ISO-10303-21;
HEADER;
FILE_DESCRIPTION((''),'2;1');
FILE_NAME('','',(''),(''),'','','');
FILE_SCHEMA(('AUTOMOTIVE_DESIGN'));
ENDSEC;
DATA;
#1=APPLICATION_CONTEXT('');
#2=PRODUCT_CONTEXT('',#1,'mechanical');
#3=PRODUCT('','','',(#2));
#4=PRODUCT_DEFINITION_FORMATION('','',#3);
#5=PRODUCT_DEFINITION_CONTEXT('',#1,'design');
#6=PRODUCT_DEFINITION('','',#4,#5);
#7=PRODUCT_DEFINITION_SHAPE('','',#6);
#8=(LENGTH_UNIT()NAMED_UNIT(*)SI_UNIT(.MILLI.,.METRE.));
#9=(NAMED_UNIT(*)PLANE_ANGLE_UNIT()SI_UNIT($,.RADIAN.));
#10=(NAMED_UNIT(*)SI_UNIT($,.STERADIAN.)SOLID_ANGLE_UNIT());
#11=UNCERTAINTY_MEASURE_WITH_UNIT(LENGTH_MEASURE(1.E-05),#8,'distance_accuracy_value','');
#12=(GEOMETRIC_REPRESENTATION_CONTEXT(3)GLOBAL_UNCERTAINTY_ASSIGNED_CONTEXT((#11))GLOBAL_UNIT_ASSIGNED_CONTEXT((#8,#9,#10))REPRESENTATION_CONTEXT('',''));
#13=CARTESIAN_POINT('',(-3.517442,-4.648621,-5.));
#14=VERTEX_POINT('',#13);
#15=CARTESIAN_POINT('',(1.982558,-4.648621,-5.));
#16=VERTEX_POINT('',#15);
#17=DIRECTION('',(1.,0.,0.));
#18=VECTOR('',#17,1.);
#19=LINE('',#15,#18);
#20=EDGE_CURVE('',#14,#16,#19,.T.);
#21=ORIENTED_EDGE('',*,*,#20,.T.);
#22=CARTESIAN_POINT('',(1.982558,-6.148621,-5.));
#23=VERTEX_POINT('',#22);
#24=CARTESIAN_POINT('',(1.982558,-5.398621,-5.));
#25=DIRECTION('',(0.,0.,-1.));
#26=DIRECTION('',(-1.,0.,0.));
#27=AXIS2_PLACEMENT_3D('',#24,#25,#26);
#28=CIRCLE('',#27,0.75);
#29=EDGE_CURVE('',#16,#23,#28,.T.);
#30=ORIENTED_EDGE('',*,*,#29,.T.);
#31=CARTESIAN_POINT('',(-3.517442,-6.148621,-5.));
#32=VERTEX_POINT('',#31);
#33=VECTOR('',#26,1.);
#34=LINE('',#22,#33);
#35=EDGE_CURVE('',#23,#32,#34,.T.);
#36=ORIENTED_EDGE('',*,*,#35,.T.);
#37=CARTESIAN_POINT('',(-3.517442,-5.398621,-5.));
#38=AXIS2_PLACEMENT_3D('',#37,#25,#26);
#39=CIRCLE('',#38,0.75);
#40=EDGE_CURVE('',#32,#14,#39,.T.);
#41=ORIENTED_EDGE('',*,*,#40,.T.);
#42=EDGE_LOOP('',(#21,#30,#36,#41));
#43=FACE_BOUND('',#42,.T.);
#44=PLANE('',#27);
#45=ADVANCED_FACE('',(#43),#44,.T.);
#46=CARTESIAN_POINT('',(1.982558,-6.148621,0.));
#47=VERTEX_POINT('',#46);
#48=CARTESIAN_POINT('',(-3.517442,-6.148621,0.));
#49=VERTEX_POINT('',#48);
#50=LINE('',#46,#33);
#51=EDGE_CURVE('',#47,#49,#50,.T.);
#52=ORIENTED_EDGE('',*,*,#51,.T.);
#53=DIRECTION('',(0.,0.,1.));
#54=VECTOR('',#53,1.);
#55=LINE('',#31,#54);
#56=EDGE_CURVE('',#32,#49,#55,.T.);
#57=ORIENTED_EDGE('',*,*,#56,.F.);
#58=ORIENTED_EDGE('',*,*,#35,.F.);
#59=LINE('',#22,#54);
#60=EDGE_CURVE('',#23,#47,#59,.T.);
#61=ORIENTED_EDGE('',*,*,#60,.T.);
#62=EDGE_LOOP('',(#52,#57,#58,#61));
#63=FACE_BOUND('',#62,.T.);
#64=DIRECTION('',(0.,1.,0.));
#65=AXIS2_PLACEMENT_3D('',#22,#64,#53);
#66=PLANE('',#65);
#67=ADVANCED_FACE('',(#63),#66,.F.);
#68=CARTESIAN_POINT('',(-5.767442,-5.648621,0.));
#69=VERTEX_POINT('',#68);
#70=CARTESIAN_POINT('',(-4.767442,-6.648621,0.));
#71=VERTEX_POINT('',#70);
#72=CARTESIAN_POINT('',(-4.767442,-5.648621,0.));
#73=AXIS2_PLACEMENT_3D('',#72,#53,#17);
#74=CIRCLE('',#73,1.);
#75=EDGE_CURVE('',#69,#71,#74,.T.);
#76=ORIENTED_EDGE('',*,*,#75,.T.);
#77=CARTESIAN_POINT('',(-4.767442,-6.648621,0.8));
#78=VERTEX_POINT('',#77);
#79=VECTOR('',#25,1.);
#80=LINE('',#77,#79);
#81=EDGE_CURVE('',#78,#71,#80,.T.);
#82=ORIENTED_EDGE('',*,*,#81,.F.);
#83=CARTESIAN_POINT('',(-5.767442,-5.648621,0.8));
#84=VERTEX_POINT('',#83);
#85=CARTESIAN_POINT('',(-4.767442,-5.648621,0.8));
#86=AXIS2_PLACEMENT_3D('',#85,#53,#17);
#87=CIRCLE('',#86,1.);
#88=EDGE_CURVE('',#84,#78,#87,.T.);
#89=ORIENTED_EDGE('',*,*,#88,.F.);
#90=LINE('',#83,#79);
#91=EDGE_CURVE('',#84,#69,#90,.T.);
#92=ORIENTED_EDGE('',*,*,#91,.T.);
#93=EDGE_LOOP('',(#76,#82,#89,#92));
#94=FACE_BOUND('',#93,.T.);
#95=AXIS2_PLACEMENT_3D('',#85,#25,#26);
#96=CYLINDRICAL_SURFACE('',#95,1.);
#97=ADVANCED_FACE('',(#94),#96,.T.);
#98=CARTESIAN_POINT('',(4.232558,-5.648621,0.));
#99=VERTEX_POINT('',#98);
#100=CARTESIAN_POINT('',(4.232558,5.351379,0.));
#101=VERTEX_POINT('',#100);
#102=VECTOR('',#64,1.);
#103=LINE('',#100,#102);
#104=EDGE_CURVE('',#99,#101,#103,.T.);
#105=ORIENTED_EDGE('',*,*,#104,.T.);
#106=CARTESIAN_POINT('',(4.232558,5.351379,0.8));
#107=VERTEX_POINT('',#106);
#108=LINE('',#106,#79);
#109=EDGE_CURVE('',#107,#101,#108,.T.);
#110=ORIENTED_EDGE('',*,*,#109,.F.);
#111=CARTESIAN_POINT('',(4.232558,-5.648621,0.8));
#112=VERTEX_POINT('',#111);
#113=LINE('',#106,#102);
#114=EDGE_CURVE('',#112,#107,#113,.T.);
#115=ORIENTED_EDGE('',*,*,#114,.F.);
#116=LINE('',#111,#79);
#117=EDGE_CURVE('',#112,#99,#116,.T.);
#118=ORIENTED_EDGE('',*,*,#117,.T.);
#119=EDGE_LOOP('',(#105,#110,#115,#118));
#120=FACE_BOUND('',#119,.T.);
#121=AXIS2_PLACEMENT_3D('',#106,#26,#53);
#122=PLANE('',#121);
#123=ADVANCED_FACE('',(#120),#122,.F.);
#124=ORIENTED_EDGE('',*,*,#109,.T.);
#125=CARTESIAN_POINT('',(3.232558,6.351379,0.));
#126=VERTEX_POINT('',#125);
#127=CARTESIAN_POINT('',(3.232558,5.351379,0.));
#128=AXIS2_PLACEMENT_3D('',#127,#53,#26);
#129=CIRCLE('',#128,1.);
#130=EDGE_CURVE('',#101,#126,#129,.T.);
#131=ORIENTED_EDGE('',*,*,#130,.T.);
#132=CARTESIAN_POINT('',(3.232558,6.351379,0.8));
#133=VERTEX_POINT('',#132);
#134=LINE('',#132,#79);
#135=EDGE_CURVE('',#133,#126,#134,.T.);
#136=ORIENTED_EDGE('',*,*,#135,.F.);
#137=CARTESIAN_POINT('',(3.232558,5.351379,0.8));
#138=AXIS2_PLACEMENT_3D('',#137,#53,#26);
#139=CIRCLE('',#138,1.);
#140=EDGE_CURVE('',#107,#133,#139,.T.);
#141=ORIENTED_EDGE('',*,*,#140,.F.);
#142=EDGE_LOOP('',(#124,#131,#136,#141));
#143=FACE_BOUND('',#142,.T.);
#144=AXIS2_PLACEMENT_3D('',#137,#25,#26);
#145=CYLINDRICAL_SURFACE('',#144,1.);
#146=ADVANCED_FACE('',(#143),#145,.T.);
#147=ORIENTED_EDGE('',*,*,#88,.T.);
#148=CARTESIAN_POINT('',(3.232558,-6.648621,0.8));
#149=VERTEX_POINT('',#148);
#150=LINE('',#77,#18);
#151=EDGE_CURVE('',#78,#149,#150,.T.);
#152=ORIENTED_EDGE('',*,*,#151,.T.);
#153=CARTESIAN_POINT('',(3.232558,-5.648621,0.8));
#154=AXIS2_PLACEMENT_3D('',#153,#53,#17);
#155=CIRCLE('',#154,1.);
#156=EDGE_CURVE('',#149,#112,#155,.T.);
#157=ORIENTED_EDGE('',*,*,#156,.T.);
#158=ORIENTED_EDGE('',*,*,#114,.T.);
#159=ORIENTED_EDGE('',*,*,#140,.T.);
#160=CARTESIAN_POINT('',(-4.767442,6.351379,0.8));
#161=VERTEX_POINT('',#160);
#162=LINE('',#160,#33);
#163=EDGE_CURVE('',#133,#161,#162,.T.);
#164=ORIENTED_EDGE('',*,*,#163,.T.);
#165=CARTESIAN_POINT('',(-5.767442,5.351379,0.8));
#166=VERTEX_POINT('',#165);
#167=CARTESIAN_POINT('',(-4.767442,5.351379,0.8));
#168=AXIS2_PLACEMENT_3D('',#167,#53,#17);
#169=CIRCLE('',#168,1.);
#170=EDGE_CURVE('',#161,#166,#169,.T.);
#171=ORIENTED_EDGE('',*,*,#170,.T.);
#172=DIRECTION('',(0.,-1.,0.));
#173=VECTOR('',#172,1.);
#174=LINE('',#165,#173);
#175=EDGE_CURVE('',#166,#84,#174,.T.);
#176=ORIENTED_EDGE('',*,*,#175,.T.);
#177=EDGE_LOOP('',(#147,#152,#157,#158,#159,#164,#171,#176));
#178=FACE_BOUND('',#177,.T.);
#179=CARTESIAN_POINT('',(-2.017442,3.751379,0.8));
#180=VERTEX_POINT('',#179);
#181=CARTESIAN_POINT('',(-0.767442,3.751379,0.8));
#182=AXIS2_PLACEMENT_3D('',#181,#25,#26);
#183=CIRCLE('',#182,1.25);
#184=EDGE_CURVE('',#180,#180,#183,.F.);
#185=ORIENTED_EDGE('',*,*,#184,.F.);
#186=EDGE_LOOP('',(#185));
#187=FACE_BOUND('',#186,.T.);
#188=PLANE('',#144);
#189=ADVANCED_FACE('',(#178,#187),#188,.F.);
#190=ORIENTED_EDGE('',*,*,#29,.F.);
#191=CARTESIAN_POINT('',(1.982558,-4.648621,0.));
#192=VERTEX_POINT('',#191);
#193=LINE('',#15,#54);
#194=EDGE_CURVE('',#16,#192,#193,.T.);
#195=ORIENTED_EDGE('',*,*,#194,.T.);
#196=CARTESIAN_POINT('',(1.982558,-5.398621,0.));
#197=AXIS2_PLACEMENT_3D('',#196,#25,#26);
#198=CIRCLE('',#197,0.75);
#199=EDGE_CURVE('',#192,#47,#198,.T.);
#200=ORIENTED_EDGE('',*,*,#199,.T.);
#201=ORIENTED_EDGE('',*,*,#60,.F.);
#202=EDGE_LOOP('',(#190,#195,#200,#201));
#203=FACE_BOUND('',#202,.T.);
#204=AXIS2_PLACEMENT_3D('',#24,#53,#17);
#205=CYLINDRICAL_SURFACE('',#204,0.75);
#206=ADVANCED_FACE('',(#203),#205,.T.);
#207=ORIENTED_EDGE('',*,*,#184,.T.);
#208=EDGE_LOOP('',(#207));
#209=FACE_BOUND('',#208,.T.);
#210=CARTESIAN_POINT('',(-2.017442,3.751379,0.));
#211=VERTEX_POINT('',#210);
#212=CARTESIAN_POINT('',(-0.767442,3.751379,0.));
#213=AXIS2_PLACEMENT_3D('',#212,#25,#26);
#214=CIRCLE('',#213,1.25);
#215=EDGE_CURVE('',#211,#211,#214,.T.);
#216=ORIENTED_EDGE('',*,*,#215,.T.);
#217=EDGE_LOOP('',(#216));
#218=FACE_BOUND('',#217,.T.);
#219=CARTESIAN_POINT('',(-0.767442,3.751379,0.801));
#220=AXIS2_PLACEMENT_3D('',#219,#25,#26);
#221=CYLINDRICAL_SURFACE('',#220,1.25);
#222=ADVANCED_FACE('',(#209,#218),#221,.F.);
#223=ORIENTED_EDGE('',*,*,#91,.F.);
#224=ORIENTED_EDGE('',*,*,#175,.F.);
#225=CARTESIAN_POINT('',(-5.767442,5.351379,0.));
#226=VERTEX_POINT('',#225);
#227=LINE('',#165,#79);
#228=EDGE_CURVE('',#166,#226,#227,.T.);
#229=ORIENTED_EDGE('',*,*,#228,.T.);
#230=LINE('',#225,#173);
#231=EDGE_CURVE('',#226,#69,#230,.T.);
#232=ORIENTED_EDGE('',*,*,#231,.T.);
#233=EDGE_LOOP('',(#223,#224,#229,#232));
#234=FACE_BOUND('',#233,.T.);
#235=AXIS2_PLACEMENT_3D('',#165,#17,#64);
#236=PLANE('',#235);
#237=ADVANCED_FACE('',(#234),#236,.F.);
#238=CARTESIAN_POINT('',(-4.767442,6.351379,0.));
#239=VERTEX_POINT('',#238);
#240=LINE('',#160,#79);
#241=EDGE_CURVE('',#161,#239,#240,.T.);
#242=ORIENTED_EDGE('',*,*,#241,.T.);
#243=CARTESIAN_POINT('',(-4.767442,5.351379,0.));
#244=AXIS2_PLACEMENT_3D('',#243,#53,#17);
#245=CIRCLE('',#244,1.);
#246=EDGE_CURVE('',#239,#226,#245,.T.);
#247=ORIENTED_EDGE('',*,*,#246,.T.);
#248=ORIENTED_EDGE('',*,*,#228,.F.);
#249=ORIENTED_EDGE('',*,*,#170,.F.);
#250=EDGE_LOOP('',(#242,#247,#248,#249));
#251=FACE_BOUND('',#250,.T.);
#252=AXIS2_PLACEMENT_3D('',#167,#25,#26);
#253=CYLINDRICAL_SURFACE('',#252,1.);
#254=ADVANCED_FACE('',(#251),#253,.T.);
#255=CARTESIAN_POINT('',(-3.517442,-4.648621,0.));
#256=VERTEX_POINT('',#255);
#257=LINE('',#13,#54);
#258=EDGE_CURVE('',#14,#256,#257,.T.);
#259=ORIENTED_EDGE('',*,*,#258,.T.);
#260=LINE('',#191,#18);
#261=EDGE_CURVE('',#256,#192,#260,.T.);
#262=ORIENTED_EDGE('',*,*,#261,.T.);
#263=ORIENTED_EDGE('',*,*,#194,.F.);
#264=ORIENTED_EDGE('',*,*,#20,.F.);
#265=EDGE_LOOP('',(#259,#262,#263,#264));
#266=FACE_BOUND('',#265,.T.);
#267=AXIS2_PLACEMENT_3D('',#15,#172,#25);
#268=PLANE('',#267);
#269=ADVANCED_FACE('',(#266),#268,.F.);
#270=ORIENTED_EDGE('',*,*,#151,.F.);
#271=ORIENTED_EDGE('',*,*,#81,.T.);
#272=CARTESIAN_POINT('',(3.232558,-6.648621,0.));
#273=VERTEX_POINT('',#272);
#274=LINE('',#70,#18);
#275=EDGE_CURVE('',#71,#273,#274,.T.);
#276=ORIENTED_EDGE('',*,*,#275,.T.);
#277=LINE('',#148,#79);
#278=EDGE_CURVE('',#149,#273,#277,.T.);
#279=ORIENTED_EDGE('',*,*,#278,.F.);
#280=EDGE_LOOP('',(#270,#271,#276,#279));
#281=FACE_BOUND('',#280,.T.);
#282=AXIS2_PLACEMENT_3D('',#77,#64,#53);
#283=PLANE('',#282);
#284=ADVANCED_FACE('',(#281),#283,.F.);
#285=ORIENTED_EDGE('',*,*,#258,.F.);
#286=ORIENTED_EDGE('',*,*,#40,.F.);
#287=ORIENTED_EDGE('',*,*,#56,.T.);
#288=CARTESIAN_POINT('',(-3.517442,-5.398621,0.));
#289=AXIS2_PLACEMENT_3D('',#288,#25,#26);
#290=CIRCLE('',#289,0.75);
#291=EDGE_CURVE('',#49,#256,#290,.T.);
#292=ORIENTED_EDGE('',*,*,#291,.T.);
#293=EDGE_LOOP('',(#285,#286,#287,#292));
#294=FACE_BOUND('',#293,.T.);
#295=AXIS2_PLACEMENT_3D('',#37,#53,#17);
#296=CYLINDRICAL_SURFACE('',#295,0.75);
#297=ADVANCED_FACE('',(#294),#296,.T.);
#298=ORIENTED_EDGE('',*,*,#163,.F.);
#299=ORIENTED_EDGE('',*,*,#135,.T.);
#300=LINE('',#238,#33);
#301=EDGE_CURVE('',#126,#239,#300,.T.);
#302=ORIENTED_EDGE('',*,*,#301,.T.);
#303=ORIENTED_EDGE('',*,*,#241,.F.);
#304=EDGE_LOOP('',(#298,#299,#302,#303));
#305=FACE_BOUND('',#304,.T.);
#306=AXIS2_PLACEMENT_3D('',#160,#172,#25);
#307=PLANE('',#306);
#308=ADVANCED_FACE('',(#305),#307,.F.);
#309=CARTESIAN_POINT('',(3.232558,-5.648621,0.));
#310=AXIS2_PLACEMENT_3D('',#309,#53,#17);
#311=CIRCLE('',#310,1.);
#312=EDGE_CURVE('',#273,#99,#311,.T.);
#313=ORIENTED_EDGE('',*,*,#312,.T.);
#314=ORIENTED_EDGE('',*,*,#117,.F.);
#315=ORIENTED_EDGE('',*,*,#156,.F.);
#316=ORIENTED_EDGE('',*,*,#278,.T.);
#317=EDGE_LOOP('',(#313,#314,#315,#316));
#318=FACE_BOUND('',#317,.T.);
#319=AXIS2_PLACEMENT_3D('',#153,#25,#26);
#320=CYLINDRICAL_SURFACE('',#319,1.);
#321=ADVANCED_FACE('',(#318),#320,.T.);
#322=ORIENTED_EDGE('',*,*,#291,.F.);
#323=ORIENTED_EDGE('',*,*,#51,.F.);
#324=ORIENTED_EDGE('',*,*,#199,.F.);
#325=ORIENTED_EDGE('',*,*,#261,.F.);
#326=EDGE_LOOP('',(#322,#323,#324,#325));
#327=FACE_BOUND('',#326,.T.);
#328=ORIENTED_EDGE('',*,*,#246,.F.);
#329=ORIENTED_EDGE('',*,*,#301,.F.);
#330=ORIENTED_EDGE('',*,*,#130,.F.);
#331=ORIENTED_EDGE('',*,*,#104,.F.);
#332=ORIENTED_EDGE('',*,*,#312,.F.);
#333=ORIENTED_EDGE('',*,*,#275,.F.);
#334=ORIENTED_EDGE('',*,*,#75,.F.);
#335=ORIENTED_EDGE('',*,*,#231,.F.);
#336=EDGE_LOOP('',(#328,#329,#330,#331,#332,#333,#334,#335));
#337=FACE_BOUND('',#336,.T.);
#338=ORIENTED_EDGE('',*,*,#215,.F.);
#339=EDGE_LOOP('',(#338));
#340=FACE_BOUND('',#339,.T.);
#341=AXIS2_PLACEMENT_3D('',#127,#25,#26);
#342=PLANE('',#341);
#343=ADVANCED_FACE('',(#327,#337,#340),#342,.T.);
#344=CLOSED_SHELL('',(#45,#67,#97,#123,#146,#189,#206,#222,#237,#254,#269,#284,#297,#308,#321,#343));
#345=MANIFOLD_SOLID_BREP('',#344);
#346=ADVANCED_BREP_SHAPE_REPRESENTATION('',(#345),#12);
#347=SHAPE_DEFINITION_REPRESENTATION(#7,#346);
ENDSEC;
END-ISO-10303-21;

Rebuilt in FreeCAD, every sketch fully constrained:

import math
import FreeCAD as App
import Part
import Sketcher
from FreeCAD import Vector

doc = App.newDocument("Part")
body = doc.addObject("PartDesign::Body", "Body")

sketch1 = body.newObject("Sketcher::SketchObject", "Sketch")
sketch1.AttachmentSupport = (doc.getObject("XY_Plane"), [""])
sketch1.MapMode = "FlatFace"
sketch1.addGeometry([
    Part.LineSegment(Vector(3.232558, 6.351379, 0), Vector(-4.767442, 6.351379, 0)),
    Part.ArcOfCircle(Part.Circle(Vector(-4.767442, 5.351379, 0), Vector(0, 0, 1), 1), math.radians(90), math.radians(180)),
    Part.LineSegment(Vector(-5.767442, 5.351379, 0), Vector(-5.767442, -5.648621, 0)),
    Part.ArcOfCircle(Part.Circle(Vector(-4.767442, -5.648621, 0), Vector(0, 0, 1), 1), math.radians(180), math.radians(270)),
    Part.LineSegment(Vector(-4.767442, -6.648621, 0), Vector(3.232558, -6.648621, 0)),
    Part.ArcOfCircle(Part.Circle(Vector(3.232558, -5.648621, 0), Vector(0, 0, 1), 1), math.radians(-90), math.radians(0)),
    Part.LineSegment(Vector(4.232558, -5.648621, 0), Vector(4.232558, 5.351379, 0)),
    Part.ArcOfCircle(Part.Circle(Vector(3.232558, 5.351379, 0), Vector(0, 0, 1), 1), math.radians(0), math.radians(90)),
], False)
sketch1.addConstraint([
    Sketcher.Constraint("Tangent", 0, 2, 1, 1),
    Sketcher.Constraint("Tangent", 1, 2, 2, 1),
    Sketcher.Constraint("Tangent", 2, 2, 3, 1),
    Sketcher.Constraint("Tangent", 3, 2, 4, 1),
    Sketcher.Constraint("Tangent", 4, 2, 5, 1),
    Sketcher.Constraint("Tangent", 5, 2, 6, 1),
    Sketcher.Constraint("Tangent", 6, 2, 7, 1),
    Sketcher.Constraint("Tangent", 7, 2, 0, 1),
    Sketcher.Constraint("Horizontal", 0),
    Sketcher.Constraint("Vertical", 2),
    Sketcher.Constraint("Horizontal", 4),
    Sketcher.Constraint("Vertical", 6),
    Sketcher.Constraint("Equal", 1, 3),
    Sketcher.Constraint("Equal", 3, 5),
    Sketcher.Constraint("Equal", 5, 7),
    Sketcher.Constraint("Radius", 1, 1.0),
    Sketcher.Constraint("DistanceX", 0, 2, 0, 1, 8.0),
    Sketcher.Constraint("DistanceY", 2, 2, 2, 1, 11.0),
    Sketcher.Constraint("DistanceX", 1, 3, -1, 1, 4.767442),
    Sketcher.Constraint("DistanceY", -1, 1, 1, 3, 5.351379),
])
pad1 = body.newObject("PartDesign::Pad", "Pad")
pad1.Profile = sketch1
pad1.Length = 0.8

sketch2 = body.newObject("Sketcher::SketchObject", "Sketch001")
sketch2.AttachmentSupport = (doc.getObject("XY_Plane"), [""])
sketch2.MapMode = "FlatFace"
sketch2.addGeometry(Part.Circle(Vector(-0.767442, 3.751379, 0), Vector(0, 0, 1), 1.25), False)
sketch2.addConstraint([
    Sketcher.Constraint("Diameter", 0, 2.5),
    Sketcher.Constraint("DistanceX", 0, 3, -1, 1, 0.767442),
    Sketcher.Constraint("DistanceY", -1, 1, 0, 3, 3.751379),
])
pocket1 = body.newObject("PartDesign::Pocket", "Pocket")
pocket1.Profile = sketch2
pocket1.Type = "UpToFirst"
pocket1.Reversed = True

sketch3 = body.newObject("Sketcher::SketchObject", "Sketch002")
sketch3.AttachmentSupport = (doc.getObject("XY_Plane"), [""])
sketch3.MapMode = "FlatFace"
sketch3.addGeometry([
    Part.LineSegment(Vector(-3.517442, -4.648621, 0), Vector(1.982558, -4.648621, 0)),
    Part.ArcOfCircle(Part.Circle(Vector(1.982558, -5.398621, 0), Vector(0, 0, 1), 0.75), math.radians(-90), math.radians(90)),
    Part.LineSegment(Vector(1.982558, -6.148621, 0), Vector(-3.517442, -6.148621, 0)),
    Part.ArcOfCircle(Part.Circle(Vector(-3.517442, -5.398621, 0), Vector(0, 0, 1), 0.75), math.radians(90), math.radians(270)),
], False)
sketch3.addConstraint([
    Sketcher.Constraint("Tangent", 0, 2, 1, 2),
    Sketcher.Constraint("Tangent", 1, 1, 2, 1),
    Sketcher.Constraint("Tangent", 2, 2, 3, 2),
    Sketcher.Constraint("Tangent", 3, 1, 0, 1),
    Sketcher.Constraint("Horizontal", 0),
    Sketcher.Constraint("Horizontal", 2),
    Sketcher.Constraint("Radius", 1, 0.75),
    Sketcher.Constraint("DistanceX", 0, 1, 0, 2, 5.5),
    Sketcher.Constraint("DistanceX", -1, 1, 1, 3, 1.982558),
    Sketcher.Constraint("DistanceY", 1, 3, -1, 1, 5.398621),
])
pad2 = body.newObject("PartDesign::Pad", "Pad001")
pad2.Profile = sketch3
pad2.Length = 5
pad2.Reversed = True

doc.recompute()
